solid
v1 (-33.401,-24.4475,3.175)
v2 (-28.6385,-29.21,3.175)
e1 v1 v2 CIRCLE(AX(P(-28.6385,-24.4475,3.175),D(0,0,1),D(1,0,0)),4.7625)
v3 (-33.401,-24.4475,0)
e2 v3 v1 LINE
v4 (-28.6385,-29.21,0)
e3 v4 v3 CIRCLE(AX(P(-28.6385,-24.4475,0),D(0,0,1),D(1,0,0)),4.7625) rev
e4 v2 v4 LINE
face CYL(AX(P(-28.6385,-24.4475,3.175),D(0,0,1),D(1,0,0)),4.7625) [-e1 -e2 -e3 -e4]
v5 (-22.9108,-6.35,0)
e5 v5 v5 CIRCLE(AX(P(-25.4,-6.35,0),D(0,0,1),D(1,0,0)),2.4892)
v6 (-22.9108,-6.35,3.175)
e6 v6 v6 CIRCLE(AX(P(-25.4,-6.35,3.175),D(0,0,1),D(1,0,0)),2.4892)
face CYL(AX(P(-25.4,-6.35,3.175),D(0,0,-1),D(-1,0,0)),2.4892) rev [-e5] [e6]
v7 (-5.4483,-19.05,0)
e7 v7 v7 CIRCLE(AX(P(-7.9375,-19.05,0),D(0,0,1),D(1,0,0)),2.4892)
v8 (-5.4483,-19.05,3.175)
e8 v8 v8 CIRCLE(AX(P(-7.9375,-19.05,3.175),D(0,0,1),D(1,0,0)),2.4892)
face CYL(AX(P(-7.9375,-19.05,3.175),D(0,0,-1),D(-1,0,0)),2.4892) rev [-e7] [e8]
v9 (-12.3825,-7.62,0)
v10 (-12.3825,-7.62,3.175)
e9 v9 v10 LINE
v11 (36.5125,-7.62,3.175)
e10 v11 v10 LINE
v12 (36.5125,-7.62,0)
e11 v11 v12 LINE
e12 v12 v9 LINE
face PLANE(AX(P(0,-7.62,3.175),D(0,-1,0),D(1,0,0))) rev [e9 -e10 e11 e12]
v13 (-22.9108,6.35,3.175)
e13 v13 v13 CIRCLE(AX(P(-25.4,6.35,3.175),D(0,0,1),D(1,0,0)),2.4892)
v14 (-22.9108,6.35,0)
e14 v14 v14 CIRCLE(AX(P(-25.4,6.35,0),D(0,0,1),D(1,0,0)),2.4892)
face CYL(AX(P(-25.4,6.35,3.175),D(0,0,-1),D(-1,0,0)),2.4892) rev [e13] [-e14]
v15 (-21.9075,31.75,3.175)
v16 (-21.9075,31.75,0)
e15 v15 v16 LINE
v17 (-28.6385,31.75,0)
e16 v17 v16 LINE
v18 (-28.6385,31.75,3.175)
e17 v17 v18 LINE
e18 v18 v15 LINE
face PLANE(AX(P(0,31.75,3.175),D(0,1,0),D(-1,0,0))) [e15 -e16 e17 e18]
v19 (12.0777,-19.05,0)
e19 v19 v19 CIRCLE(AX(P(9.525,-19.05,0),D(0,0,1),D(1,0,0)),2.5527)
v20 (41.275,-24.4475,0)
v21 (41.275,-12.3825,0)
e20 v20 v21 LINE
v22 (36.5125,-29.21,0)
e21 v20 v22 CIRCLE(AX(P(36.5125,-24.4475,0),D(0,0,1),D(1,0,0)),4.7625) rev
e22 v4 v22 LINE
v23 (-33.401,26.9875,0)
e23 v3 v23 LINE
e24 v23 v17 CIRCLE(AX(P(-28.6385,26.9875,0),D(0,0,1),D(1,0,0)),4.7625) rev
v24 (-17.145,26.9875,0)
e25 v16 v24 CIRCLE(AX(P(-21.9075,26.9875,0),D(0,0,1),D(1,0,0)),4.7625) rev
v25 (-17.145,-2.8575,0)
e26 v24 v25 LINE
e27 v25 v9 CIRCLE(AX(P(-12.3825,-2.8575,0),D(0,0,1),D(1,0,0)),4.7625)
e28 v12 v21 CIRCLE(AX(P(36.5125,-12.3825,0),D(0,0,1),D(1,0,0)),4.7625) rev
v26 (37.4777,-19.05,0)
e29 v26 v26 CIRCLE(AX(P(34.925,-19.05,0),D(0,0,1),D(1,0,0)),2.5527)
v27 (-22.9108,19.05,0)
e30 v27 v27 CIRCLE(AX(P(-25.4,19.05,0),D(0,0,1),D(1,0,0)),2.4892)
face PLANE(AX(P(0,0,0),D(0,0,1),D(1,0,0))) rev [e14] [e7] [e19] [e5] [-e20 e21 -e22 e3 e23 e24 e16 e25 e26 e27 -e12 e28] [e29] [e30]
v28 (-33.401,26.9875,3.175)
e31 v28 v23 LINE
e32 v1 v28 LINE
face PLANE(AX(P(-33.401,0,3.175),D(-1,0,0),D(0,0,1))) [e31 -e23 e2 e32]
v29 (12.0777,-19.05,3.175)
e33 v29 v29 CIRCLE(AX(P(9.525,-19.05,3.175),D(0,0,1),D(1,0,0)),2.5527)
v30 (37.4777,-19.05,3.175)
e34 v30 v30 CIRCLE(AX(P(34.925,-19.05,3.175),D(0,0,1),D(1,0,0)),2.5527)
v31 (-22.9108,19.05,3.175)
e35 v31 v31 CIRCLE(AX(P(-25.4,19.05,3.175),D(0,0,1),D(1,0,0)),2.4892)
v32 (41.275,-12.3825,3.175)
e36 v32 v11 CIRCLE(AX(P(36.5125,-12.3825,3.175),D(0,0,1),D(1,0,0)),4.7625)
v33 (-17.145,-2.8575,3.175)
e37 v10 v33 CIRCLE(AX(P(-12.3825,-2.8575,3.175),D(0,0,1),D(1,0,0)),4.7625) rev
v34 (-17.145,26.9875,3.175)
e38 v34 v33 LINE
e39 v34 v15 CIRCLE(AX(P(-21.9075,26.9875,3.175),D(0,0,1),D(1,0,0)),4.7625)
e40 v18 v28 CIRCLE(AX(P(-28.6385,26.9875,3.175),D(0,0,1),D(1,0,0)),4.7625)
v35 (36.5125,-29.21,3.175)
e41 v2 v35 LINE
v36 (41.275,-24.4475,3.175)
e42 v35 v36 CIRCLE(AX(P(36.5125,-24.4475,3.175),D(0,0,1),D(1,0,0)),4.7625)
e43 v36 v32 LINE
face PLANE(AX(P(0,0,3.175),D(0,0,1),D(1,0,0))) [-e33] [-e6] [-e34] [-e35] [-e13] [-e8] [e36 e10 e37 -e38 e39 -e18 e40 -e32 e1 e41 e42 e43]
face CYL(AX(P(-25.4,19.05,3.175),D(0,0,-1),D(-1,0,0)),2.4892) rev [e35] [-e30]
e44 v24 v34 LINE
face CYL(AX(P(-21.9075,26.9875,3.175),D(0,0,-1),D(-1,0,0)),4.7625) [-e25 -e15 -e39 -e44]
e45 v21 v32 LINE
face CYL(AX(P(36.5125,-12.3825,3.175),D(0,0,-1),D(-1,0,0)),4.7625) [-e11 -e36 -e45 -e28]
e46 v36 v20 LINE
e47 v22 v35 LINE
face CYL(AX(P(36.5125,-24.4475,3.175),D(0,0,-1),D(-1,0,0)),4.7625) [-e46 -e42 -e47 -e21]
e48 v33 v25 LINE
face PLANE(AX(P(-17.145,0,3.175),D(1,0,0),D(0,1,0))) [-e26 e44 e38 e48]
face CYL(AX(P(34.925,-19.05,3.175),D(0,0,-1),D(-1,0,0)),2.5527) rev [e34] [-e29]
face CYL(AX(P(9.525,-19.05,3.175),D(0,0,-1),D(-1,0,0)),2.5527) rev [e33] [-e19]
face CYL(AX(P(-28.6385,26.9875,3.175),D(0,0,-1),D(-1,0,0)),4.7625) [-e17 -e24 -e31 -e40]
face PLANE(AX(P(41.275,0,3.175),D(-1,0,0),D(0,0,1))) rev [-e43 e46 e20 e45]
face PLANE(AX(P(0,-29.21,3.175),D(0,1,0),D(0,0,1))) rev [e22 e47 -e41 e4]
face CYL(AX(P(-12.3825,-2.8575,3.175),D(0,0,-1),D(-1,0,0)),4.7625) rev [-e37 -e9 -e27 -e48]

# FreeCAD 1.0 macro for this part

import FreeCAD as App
import Part
import Sketcher

V = App.Vector
Q = App.Units.Quantity


def edges_at(feature, points):
    """Names of the edges that pass closest to the given points."""
    edges = feature.Shape.Edges
    near = lambda p: min(range(len(edges)), key=lambda i: edges[i].distToShape(Part.Vertex(*p))[0])
    return sorted({f"Edge{near(p) + 1}" for p in points})

doc = App.newDocument("Part")
body = doc.addObject("PartDesign::Body", "Body")

# Sketch on XY plane
sketch1 = body.newObject("Sketcher::SketchObject", "Sketch")
sketch1.AttachmentSupport = (doc.getObject("XY_Plane"), [""])
sketch1.MapMode = "FlatFace"
sketch1.addGeometry(Part.LineSegment(V(-33.4, 31.8, 0), V(-33.4, -29.2, 0)), False)
sketch1.addGeometry(Part.LineSegment(V(-33.4, -29.2, 0), V(41.3, -29.2, 0)), False)
sketch1.addGeometry(Part.LineSegment(V(41.3, -29.2, 0), V(41.3, -7.6, 0)), False)
sketch1.addGeometry(Part.LineSegment(V(41.3, -7.6, 0), V(-17.1, -7.6, 0)), False)
sketch1.addGeometry(Part.LineSegment(V(-17.1, -7.6, 0), V(-17.1, 31.8, 0)), False)
sketch1.addGeometry(Part.LineSegment(V(-17.1, 31.8, 0), V(-33.4, 31.8, 0)), False)
sketch1.addGeometry(Part.Circle(V(-7.9, -19.1, 0), V(0, 0, 1), 2.5), False)
sketch1.addGeometry(Part.Circle(V(-25.4, -6.3, 0), V(0, 0, 1), 2.5), False)
sketch1.addGeometry(Part.Circle(V(9.5, -19.1, 0), V(0, 0, 1), 2.6), False)
sketch1.addGeometry(Part.Circle(V(34.9, -19.1, 0), V(0, 0, 1), 2.6), False)
sketch1.addGeometry(Part.Circle(V(-25.4, 6.3, 0), V(0, 0, 1), 2.5), False)
sketch1.addGeometry(Part.Circle(V(-25.4, 19.1, 0), V(0, 0, 1), 2.5), False)
sketch1.addConstraint(Sketcher.Constraint("Coincident", 0, 2, 1, 1))
sketch1.addConstraint(Sketcher.Constraint("Coincident", 1, 2, 2, 1))
sketch1.addConstraint(Sketcher.Constraint("Coincident", 2, 2, 3, 1))
sketch1.addConstraint(Sketcher.Constraint("Coincident", 3, 2, 4, 1))
sketch1.addConstraint(Sketcher.Constraint("Coincident", 4, 2, 5, 1))
sketch1.addConstraint(Sketcher.Constraint("Coincident", 5, 2, 0, 1))
sketch1.addConstraint(Sketcher.Constraint("Vertical", 0))
sketch1.addConstraint(Sketcher.Constraint("Horizontal", 1))
sketch1.addConstraint(Sketcher.Constraint("Vertical", 2))
sketch1.addConstraint(Sketcher.Constraint("Horizontal", 3))
sketch1.addConstraint(Sketcher.Constraint("Vertical", 4))
sketch1.addConstraint(Sketcher.Constraint("Horizontal", 5))
sketch1.addConstraint(Sketcher.Constraint("Equal", 6, 7))
sketch1.addConstraint(Sketcher.Constraint("Equal", 8, 9))
sketch1.addConstraint(Sketcher.Constraint("Equal", 7, 10))
sketch1.addConstraint(Sketcher.Constraint("Equal", 10, 11))
sketch1.addConstraint(Sketcher.Constraint("Symmetric", 7, 3, 10, 3, -1))
sketch1.addConstraint(Sketcher.Constraint("Horizontal", 6, 3, 8, 3))
sketch1.addConstraint(Sketcher.Constraint("Horizontal", 8, 3, 9, 3))
sketch1.addConstraint(Sketcher.Constraint("Vertical", 10, 3, 11, 3))
sketch1.addConstraint(Sketcher.Constraint("Diameter", 6, Q("0.196 in")))
sketch1.addConstraint(Sketcher.Constraint("Diameter", 8, Q("0.201 in")))
sketch1.addConstraint(Sketcher.Constraint("DistanceX", 3, 2, 3, 1, Q("2.3 in")))
sketch1.addConstraint(Sketcher.Constraint("DistanceY", 0, 2, 0, 1, Q("2.4 in")))
sketch1.addConstraint(Sketcher.Constraint("DistanceX", 7, 3, -1, 1, Q("1 in")))
sketch1.addConstraint(Sketcher.Constraint("DistanceX", 8, 3, 9, 3, Q("1 in")))
sketch1.addConstraint(Sketcher.Constraint("DistanceY", 6, 3, 10, 3, Q("1 in")))
sketch1.addConstraint(Sketcher.Constraint("DistanceY", 7, 3, 11, 3, Q("1 in")))
sketch1.addConstraint(Sketcher.Constraint("DistanceY", 10, 3, 4, 2, Q("1 in")))
sketch1.addConstraint(Sketcher.Constraint("DistanceX", 1, 1, 1, 2, Q("2.94 in")))
sketch1.addConstraint(Sketcher.Constraint("DistanceY", 2, 1, 2, 2, Q("0.85 in")))
sketch1.addConstraint(Sketcher.Constraint("DistanceY", 2, 2, -1, 1, Q("0.3 in")))
sketch1.addConstraint(Sketcher.Constraint("DistanceX", 0, 2, 8, 3, Q("1.69 in")))
sketch1.addConstraint(Sketcher.Constraint("DistanceX", 6, 3, -1, 1, Q("0.3125 in")))
sketch1.addConstraint(Sketcher.Constraint("DistanceX", -1, 1, 8, 3, Q("0.375 in")))
pad1 = body.newObject("PartDesign::Pad", "Pad")
pad1.Profile = sketch1
pad1.Length = Q("0.125 in")
doc.recompute()

fillet = body.newObject("PartDesign::Fillet", "Fillet")
fillet.Base = (pad1, edges_at(pad1, [
    (-33.401, 31.75, 1.587),
    (-17.145, 31.75, 1.587),
    (-17.145, -7.62, 1.587),
    (41.275, -7.62, 1.587),
    (41.275, -29.21, 1.587),
    (-33.401, -29.21, 1.587),
]))
fillet.Radius = Q("0.1875 in")

doc.recompute()
